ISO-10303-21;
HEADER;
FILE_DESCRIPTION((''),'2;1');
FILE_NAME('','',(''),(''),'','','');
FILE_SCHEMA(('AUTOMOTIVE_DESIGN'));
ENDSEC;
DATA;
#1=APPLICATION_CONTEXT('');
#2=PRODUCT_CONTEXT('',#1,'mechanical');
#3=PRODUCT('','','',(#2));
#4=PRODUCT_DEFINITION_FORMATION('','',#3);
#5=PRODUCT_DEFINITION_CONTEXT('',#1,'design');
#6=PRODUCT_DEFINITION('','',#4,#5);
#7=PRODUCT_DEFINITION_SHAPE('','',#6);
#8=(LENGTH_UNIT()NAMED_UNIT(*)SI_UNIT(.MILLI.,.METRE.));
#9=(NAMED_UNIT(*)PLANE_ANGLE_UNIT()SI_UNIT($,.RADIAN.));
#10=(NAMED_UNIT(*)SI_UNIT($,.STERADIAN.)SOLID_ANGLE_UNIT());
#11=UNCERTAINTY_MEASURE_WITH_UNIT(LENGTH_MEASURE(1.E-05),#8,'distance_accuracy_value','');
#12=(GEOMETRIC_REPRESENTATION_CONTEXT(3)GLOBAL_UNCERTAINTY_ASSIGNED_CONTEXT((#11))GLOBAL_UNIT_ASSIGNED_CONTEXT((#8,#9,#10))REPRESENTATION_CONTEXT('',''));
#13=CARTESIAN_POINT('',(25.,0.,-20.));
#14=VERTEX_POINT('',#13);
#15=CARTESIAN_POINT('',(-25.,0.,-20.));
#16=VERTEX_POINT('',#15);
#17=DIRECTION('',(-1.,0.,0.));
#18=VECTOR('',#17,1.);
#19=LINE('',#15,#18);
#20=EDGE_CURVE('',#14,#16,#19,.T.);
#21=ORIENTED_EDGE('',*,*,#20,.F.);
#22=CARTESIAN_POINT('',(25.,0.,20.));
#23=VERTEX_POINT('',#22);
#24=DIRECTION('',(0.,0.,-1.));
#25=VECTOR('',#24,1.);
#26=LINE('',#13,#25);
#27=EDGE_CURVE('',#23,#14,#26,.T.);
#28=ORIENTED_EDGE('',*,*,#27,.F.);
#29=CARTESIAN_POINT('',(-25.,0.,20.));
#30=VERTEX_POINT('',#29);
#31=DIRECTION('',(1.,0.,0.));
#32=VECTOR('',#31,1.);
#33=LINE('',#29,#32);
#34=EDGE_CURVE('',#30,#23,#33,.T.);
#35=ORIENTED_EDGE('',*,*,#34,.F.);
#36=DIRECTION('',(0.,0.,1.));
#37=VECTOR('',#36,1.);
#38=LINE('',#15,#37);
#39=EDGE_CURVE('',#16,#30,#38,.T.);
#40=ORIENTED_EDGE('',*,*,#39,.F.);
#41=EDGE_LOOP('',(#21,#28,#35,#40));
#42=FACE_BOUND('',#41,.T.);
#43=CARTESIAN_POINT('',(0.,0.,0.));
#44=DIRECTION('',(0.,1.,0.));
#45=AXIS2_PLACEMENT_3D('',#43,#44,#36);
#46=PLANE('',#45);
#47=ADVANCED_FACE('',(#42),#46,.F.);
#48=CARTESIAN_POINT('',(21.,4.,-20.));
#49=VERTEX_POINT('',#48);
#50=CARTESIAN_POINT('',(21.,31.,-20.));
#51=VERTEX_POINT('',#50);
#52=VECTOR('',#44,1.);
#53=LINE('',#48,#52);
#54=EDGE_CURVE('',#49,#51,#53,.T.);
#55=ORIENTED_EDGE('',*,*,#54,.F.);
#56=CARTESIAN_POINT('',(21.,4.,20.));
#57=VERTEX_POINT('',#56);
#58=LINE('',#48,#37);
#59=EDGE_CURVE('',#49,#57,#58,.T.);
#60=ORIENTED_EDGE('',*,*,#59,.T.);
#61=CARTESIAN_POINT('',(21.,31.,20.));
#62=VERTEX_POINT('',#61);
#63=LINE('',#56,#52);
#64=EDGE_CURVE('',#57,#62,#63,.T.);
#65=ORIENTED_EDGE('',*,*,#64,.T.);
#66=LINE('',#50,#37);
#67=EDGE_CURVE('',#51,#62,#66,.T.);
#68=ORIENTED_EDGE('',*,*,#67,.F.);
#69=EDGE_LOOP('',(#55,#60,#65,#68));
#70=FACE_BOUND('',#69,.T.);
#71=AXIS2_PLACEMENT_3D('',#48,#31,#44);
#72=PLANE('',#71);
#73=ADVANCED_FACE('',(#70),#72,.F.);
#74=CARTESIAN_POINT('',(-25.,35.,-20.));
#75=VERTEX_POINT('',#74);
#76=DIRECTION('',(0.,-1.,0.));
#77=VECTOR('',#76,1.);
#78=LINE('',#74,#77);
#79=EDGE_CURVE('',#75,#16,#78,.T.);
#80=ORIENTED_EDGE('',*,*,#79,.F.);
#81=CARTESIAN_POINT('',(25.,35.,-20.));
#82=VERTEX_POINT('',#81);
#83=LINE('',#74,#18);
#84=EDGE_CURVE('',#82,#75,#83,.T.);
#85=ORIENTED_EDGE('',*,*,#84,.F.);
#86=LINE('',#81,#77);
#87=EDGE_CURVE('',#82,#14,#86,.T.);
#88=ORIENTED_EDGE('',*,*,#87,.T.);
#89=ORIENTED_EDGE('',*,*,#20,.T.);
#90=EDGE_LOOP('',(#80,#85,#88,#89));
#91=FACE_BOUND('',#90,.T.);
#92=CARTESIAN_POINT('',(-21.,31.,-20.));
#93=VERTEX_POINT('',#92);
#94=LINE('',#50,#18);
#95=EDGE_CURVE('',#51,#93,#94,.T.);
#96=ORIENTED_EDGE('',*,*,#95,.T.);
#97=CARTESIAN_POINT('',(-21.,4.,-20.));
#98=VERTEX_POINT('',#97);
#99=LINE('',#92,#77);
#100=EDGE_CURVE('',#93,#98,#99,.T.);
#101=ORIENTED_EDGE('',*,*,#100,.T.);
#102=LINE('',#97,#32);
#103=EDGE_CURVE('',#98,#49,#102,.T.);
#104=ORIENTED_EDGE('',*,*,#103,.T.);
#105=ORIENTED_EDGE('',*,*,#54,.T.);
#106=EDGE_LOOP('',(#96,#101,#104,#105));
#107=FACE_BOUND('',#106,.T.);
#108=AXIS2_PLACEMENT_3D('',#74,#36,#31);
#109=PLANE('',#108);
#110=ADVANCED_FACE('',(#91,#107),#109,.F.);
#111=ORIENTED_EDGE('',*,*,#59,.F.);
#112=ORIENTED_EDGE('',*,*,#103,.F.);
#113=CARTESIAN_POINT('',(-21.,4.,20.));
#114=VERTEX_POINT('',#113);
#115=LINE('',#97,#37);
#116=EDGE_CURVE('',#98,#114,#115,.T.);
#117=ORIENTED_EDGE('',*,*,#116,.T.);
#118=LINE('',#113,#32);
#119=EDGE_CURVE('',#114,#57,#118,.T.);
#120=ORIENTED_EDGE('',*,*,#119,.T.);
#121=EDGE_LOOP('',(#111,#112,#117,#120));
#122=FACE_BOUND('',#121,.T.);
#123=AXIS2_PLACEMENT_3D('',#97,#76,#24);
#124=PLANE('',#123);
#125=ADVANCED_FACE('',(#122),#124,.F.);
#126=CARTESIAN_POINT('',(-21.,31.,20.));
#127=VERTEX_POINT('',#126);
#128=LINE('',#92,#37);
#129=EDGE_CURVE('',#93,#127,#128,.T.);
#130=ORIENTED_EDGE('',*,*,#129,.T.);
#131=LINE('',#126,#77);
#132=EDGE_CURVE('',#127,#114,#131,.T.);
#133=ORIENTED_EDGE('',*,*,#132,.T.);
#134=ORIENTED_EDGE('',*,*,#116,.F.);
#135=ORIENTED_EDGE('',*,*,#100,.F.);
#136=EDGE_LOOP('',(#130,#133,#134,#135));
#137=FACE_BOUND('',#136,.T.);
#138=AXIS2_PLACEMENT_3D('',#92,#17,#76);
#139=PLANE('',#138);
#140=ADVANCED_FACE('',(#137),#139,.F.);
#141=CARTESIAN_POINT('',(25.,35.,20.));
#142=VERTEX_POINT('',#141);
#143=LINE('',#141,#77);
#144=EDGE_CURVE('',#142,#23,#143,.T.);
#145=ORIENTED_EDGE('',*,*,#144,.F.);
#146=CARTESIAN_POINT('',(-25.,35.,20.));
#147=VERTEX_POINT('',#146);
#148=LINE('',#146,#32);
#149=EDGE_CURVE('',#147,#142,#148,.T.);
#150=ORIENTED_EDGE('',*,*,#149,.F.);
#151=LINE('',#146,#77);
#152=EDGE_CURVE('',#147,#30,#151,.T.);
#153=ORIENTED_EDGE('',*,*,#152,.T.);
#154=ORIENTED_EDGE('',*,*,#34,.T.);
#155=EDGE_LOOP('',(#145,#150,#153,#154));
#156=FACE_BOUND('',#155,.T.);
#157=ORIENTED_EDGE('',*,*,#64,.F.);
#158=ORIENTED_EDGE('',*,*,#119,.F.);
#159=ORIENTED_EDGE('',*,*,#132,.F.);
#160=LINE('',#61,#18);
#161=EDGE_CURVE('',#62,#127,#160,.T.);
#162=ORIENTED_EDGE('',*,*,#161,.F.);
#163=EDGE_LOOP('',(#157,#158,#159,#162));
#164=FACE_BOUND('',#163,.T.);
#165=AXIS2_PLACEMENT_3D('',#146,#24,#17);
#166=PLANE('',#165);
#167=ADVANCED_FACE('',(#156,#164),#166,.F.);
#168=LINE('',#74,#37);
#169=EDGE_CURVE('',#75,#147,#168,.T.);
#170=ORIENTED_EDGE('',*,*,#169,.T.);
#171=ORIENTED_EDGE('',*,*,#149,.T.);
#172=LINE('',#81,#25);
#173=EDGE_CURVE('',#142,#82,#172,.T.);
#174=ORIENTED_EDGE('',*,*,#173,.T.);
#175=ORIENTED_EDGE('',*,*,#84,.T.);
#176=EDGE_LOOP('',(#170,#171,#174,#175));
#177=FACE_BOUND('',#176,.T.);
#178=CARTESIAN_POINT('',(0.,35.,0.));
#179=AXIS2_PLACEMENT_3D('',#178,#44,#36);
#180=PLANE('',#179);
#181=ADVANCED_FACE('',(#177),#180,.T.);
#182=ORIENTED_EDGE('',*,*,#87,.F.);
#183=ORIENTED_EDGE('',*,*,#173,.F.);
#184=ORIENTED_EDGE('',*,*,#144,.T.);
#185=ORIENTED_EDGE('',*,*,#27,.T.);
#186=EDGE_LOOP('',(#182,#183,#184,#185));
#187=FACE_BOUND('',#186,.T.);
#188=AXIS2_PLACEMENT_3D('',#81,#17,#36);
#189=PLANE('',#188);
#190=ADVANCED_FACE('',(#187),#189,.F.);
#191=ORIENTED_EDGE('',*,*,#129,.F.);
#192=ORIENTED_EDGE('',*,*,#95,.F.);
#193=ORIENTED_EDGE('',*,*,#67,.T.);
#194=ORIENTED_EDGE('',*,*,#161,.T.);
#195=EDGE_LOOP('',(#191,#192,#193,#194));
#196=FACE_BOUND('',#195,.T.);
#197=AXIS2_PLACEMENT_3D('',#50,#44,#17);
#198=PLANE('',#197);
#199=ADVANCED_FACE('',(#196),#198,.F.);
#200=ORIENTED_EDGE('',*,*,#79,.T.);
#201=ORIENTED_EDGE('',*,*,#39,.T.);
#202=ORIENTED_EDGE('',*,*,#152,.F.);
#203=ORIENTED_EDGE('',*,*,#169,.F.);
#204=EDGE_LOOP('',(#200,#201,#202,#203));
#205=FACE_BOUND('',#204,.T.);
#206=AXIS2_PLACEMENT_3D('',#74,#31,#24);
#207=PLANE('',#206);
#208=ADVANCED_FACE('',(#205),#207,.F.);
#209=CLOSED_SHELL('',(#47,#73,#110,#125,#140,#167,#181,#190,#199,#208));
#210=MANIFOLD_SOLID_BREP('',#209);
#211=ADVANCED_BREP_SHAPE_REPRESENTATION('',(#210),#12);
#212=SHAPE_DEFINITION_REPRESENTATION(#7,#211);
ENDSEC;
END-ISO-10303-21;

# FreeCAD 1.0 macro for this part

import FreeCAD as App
import Part
import Sketcher


def add_polygon(sketch, points):
    """Adds a closed chain of lines whose ends are joined by coincident constraints."""
    first, n = sketch.GeometryCount, len(points)
    for a, b in zip(points, points[1:] + points[:1]):
        sketch.addGeometry(Part.LineSegment(App.Vector(*a, 0), App.Vector(*b, 0)), False)
    for i in range(n):
        sketch.addConstraint(Sketcher.Constraint("Coincident", first + i, 2, first + (i + 1) % n, 1))

doc = App.newDocument("Part")
body = doc.addObject("PartDesign::Body", "Body")

# Sketch on XZ plane
sketch1 = doc.addObject("Sketcher::SketchObject", "Sketch")
body.addObject(sketch1)
sketch1.AttachmentSupport = (doc.XZ_Plane, [""])
sketch1.MapMode = "FlatFace"
add_polygon(sketch1, [(-25, -20), (-25, 20), (25, 20), (25, -20)])  # lines 0-3
sketch1.addConstraint([
    Sketcher.Constraint("Vertical", 0),
    Sketcher.Constraint("Horizontal", 1),
    Sketcher.Constraint("Vertical", 2),
    Sketcher.Constraint("Horizontal", 3),
    Sketcher.Constraint("Symmetric", 0, 2, 2, 2, -1, 1),
    Sketcher.Constraint("DistanceX", 1, 1, 1, 2, 50.0),
    Sketcher.Constraint("DistanceY", 0, 1, 0, 2, 40.0),
])
pad1 = doc.addObject("PartDesign::Pad", "Pad")
body.addObject(pad1)
pad1.Profile = sketch1
pad1.Length = 35
pad1.Reversed = True

# Sketch on XY plane
sketch2 = doc.addObject("Sketcher::SketchObject", "Sketch001")
body.addObject(sketch2)
sketch2.AttachmentSupport = (doc.XY_Plane, [""])
sketch2.MapMode = "FlatFace"
sketch2.AttachmentOffset = App.Placement(App.Vector(0, 0, 20), App.Rotation())
add_polygon(sketch2, [(-21, 31), (-21, 4), (21, 4), (21, 31)])  # lines 0-3
sketch2.addConstraint([
    Sketcher.Constraint("Vertical", 0),
    Sketcher.Constraint("Horizontal", 1),
    Sketcher.Constraint("Vertical", 2),
    Sketcher.Constraint("Horizontal", 3),
    Sketcher.Constraint("DistanceX", 1, 1, 1, 2, 42.0),
    Sketcher.Constraint("DistanceY", 0, 2, 0, 1, 27.0),
    Sketcher.Constraint("DistanceX", 0, 2, -1, 1, 21.0),
    Sketcher.Constraint("DistanceY", -1, 1, 0, 2, 4.0),
])
pocket1 = doc.addObject("PartDesign::Pocket", "Pocket")
body.addObject(pocket1)
pocket1.Profile = sketch2
pocket1.Type = "ThroughAll"

doc.recompute()
